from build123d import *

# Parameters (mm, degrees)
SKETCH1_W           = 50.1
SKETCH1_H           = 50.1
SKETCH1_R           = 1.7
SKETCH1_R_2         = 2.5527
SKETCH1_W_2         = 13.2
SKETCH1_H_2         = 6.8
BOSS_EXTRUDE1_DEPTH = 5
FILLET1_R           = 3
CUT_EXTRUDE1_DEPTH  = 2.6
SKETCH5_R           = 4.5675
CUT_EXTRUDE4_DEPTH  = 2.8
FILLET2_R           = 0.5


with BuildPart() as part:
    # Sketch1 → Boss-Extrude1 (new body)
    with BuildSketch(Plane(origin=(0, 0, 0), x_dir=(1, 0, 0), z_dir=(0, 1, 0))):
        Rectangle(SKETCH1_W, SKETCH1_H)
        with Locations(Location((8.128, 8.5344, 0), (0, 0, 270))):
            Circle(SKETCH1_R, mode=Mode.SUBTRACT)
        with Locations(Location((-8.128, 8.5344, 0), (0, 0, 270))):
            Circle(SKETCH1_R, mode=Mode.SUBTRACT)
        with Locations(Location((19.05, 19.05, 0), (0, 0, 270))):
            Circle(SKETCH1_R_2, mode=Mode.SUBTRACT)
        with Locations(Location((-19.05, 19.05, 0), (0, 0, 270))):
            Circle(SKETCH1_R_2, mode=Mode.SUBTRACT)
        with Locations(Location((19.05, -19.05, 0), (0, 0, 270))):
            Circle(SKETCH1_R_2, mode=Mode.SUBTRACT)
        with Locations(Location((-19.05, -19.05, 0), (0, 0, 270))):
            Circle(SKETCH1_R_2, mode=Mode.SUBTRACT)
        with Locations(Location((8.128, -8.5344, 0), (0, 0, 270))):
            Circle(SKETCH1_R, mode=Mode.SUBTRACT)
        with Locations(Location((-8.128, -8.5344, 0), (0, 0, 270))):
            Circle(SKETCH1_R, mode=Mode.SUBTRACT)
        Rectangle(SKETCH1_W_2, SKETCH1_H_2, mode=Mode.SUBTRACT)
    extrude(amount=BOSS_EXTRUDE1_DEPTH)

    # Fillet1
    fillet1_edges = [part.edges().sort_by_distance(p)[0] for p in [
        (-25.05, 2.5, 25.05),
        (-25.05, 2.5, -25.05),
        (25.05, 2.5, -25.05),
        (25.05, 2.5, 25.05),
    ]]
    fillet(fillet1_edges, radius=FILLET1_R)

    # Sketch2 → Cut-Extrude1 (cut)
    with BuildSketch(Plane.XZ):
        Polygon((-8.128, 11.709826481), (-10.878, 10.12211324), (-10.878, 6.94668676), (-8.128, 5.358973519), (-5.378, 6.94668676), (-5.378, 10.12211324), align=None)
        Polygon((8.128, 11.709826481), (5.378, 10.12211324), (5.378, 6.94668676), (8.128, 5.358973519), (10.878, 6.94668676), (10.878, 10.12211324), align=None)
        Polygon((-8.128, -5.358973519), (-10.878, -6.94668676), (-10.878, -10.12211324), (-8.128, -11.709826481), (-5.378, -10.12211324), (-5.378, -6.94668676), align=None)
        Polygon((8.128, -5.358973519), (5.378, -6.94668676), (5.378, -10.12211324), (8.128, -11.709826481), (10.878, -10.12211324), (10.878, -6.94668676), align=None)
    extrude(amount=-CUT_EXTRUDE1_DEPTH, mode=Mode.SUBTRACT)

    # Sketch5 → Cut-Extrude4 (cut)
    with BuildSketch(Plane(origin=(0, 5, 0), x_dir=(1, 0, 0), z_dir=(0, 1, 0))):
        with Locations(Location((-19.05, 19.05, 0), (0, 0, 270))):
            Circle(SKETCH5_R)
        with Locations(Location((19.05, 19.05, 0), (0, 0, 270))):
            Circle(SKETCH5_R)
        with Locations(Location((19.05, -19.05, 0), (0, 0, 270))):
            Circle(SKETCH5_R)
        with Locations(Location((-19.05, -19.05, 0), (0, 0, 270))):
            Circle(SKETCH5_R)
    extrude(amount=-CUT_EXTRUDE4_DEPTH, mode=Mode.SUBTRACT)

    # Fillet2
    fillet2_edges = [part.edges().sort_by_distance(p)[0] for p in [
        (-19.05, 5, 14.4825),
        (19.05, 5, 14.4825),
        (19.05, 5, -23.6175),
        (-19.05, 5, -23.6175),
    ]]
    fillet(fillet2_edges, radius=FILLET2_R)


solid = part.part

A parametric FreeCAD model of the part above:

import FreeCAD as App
import Part
import Sketcher

V = App.Vector
Q = App.Units.Quantity


def edges_at(feature, points):
    """Names of the edges that pass closest to the given points."""
    edges = feature.Shape.Edges
    near = lambda p: min(range(len(edges)), key=lambda i: edges[i].distToShape(Part.Vertex(*p))[0])
    return sorted({f"Edge{near(p) + 1}" for p in points})


def add_polygon(sketch, points):
    """Adds a closed chain of lines whose ends are joined by coincident constraints."""
    first, n = sketch.GeometryCount, len(points)
    for a, b in zip(points, points[1:] + points[:1]):
        sketch.addGeometry(Part.LineSegment(App.Vector(*a, 0), App.Vector(*b, 0)), False)
    for i in range(n):
        sketch.addConstraint(Sketcher.Constraint("Coincident", first + i, 2, first + (i + 1) % n, 1))

doc = App.newDocument("Part")
body = doc.addObject("PartDesign::Body", "Body")

# Sketch on XZ plane
sketch1 = doc.addObject("Sketcher::SketchObject", "Sketch")
body.addObject(sketch1)
sketch1.AttachmentSupport = (doc.XZ_Plane, [""])
sketch1.MapMode = "FlatFace"
add_polygon(sketch1, [(-25.05, -25.05), (-25.05, 25.05), (25.05, 25.05), (25.05, -25.05)])  # lines 0-3
sketch1.addGeometry(Part.Circle(V(-19.05, 19.05, 0), V(0, 0, 1), 2.5527), False)  # 4
sketch1.addGeometry(Part.Circle(V(-8.128, 8.5344, 0), V(0, 0, 1), 1.7), False)  # 5
sketch1.addGeometry(Part.Circle(V(19.05, 19.05, 0), V(0, 0, 1), 2.5527), False)  # 6
sketch1.addGeometry(Part.Circle(V(8.128, 8.5344, 0), V(0, 0, 1), 1.7), False)  # 7
sketch1.addGeometry(Part.Circle(V(-8.128, -8.5344, 0), V(0, 0, 1), 1.7), False)  # 8
sketch1.addGeometry(Part.Circle(V(-19.05, -19.05, 0), V(0, 0, 1), 2.5527), False)  # 9
add_polygon(sketch1, [(6.6, 3.4), (-6.6, 3.4), (-6.6, -3.4), (6.6, -3.4)])  # lines 10-13
sketch1.addGeometry(Part.Circle(V(8.128, -8.5344, 0), V(0, 0, 1), 1.7), False)  # 14
sketch1.addGeometry(Part.Circle(V(19.05, -19.05, 0), V(0, 0, 1), 2.5527), False)  # 15
sketch1.addConstraint([
    Sketcher.Constraint("Vertical", 0),
    Sketcher.Constraint("Horizontal", 1),
    Sketcher.Constraint("Vertical", 2),
    Sketcher.Constraint("Horizontal", 3),
    Sketcher.Constraint("Horizontal", 10),
    Sketcher.Constraint("Vertical", 11),
    Sketcher.Constraint("Horizontal", 12),
    Sketcher.Constraint("Vertical", 13),
    Sketcher.Constraint("Equal", 4, 6),
    Sketcher.Constraint("Equal", 5, 7),
    Sketcher.Constraint("Equal", 7, 8),
    Sketcher.Constraint("Equal", 6, 9),
    Sketcher.Constraint("Equal", 8, 14),
    Sketcher.Constraint("Equal", 9, 15),
    Sketcher.Constraint("Symmetric", 7, 3, 8, 3, -1, 1),
    Sketcher.Constraint("Symmetric", 6, 3, 9, 3, -1, 1),
    Sketcher.Constraint("Symmetric", 5, 3, 14, 3, -1, 1),
    Sketcher.Constraint("Symmetric", 4, 3, 15, 3, -1, 1),
    Sketcher.Constraint("Symmetric", 0, 2, 2, 2, -1, 1),
    Sketcher.Constraint("Symmetric", 10, 2, 12, 2, -1, 1),
    Sketcher.Constraint("Symmetric", 4, 3, 6, 3, -2),
    Sketcher.Constraint("Symmetric", 5, 3, 7, 3, -2),
    Sketcher.Constraint("Equal", 3, 0),
    Sketcher.Constraint("Diameter", 5, Q("3.4 mm")),
    Sketcher.Constraint("DistanceX", 1, 1, 1, 2, Q("50.1 mm")),
    Sketcher.Constraint("DistanceX", 10, 2, 10, 1, Q("13.2 mm")),
    Sketcher.Constraint("DistanceY", 11, 2, 11, 1, Q("6.8 mm")),
    Sketcher.Constraint("DistanceX", 0, 2, 4, 3, Q("6 mm")),
    Sketcher.Constraint("DistanceY", 4, 3, 0, 2, Q("6 mm")),
    Sketcher.Constraint("Diameter", 4, Q("5.1054 mm")),
    Sketcher.Constraint("DistanceX", 5, 3, -1, 1, Q("8.128 mm")),
    Sketcher.Constraint("DistanceY", -1, 1, 5, 3, Q("8.5344 mm")),
])
pad1 = doc.addObject("PartDesign::Pad", "Pad")
body.addObject(pad1)
pad1.Profile = sketch1
pad1.Length = 5
pad1.Reversed = True
doc.recompute()

fillet = doc.addObject("PartDesign::Fillet", "Fillet")
body.addObject(fillet)
fillet.Base = (pad1, edges_at(pad1, [
    (-25.05, 2.5, 25.05),
    (-25.05, 2.5, -25.05),
    (25.05, 2.5, -25.05),
    (25.05, 2.5, 25.05),
]))
fillet.Radius = 3

# Sketch on XZ plane
sketch2 = doc.addObject("Sketcher::SketchObject", "Sketch001")
body.addObject(sketch2)
sketch2.AttachmentSupport = (doc.XZ_Plane, [""])
sketch2.MapMode = "FlatFace"
add_polygon(sketch2, [(-8.128, 11.709826), (-10.878, 10.122113), (-10.878, 6.946687), (-8.128, 5.358974), (-5.378, 6.946687), (-5.378, 10.122113)])  # lines 0-5
add_polygon(sketch2, [(8.128, 11.709826), (5.378, 10.122113), (5.378, 6.946687), (8.128, 5.358974), (10.878, 6.946687), (10.878, 10.122113)])  # lines 6-11
add_polygon(sketch2, [(-8.128, -5.358974), (-10.878, -6.946687), (-10.878, -10.122113), (-8.128, -11.709826), (-5.378, -10.122113), (-5.378, -6.946687)])  # lines 12-17
add_polygon(sketch2, [(8.128, -5.358974), (5.378, -6.946687), (5.378, -10.122113), (8.128, -11.709826), (10.878, -10.122113), (10.878, -6.946687)])  # lines 18-23
sketch2.addConstraint([
    Sketcher.Constraint("Vertical", 1),
    Sketcher.Constraint("Vertical", 4),
    Sketcher.Constraint("Vertical", 7),
    Sketcher.Constraint("Vertical", 10),
    Sketcher.Constraint("Vertical", 13),
    Sketcher.Constraint("Vertical", 16),
    Sketcher.Constraint("Vertical", 19),
    Sketcher.Constraint("Vertical", 22),
    Sketcher.Constraint("Symmetric", 9, 2, 12, 2, -1, 1),
    Sketcher.Constraint("Symmetric", 11, 2, 14, 2, -1, 1),
    Sketcher.Constraint("Symmetric", 6, 2, 15, 2, -1, 1),
    Sketcher.Constraint("Symmetric", 8, 2, 17, 2, -1, 1),
    Sketcher.Constraint("Symmetric", 3, 2, 18, 2, -1, 1),
    Sketcher.Constraint("Symmetric", 5, 2, 20, 2, -1, 1),
    Sketcher.Constraint("Symmetric", 0, 2, 21, 2, -1, 1),
    Sketcher.Constraint("Symmetric", 2, 2, 23, 2, -1, 1),
    Sketcher.Constraint("Symmetric", 4, 2, 6, 2, -2),
    Sketcher.Constraint("Symmetric", 2, 2, 8, 2, -2),
    Sketcher.Constraint("Symmetric", 1, 2, 9, 2, -2),
    Sketcher.Constraint("Symmetric", 5, 2, 11, 2, -2),
    Sketcher.Constraint("Parallel", 0, 3),
    Sketcher.Constraint("Parallel", 2, 5),
    Sketcher.Constraint("Parallel", 3, 6),
    Sketcher.Constraint("Parallel", 5, 8),
    Sketcher.Constraint("Parallel", 8, 11),
    Sketcher.Constraint("Parallel", 11, 14),
    Sketcher.Constraint("Parallel", 14, 17),
    Sketcher.Constraint("Parallel", 17, 20),
    Sketcher.Constraint("Parallel", 20, 23),
    Sketcher.Constraint("Horizontal", 1, 2, 3, 2),
    Sketcher.Constraint("Horizontal", 0, 2, 4, 2),
    Sketcher.Constraint("Angle", 0, Q("-150 deg")),
    Sketcher.Constraint("DistanceX", 1, 2, 3, 2, Q("5.5 mm")),
    Sketcher.Constraint("DistanceX", 0, 2, -1, 1, Q("10.878 mm")),
    Sketcher.Constraint("DistanceY", 12, 2, 0, 2, Q("17.0688 mm")),
    Sketcher.Constraint("DistanceY", 1, 2, 1, 1, Q("3.175426 mm")),
])
pocket1 = doc.addObject("PartDesign::Pocket", "Pocket")
body.addObject(pocket1)
pocket1.Profile = sketch2
pocket1.Length = 2.6

# Sketch on XZ plane
sketch3 = doc.addObject("Sketcher::SketchObject", "Sketch002")
body.addObject(sketch3)
sketch3.AttachmentSupport = (doc.XZ_Plane, [""])
sketch3.MapMode = "FlatFace"
sketch3.AttachmentOffset = App.Placement(V(0, 0, -5), App.Rotation())
sketch3.addGeometry([
    Part.Circle(V(-19.05, -19.05, 0), V(0, 0, 1), 4.5675),
    Part.Circle(V(19.05, -19.05, 0), V(0, 0, 1), 4.5675),
    Part.Circle(V(19.05, 19.05, 0), V(0, 0, 1), 4.5675),
    Part.Circle(V(-19.05, 19.05, 0), V(0, 0, 1), 4.5675),
], False)
sketch3.addConstraint([
    Sketcher.Constraint("Equal", 0, 1),
    Sketcher.Constraint("Equal", 1, 2),
    Sketcher.Constraint("Equal", 2, 3),
    Sketcher.Constraint("Symmetric", 0, 3, 2, 3, -1, 1),
    Sketcher.Constraint("Symmetric", 1, 3, 3, 3, -1, 1),
    Sketcher.Constraint("Symmetric", 0, 3, 1, 3, -2),
    Sketcher.Constraint("Diameter", 0, Q("9.135 mm")),
    Sketcher.Constraint("DistanceX", 0, 3, 1, 3, Q("38.1 mm")),
    Sketcher.Constraint("DistanceY", 1, 3, 2, 3, Q("38.1 mm")),
])
pocket2 = doc.addObject("PartDesign::Pocket", "Pocket001")
body.addObject(pocket2)
pocket2.Profile = sketch3
pocket2.Length = 2.8
pocket2.Reversed = True
doc.recompute()

fillet2 = doc.addObject("PartDesign::Fillet", "Fillet001")
body.addObject(fillet2)
fillet2.Base = (pocket2, edges_at(pocket2, [
    (-19.05, 5, 14.482),
    (19.05, 5, 14.482),
    (19.05, 5, -23.617),
    (-19.05, 5, -23.617),
]))
fillet2.Radius = 0.5

doc.recompute()
